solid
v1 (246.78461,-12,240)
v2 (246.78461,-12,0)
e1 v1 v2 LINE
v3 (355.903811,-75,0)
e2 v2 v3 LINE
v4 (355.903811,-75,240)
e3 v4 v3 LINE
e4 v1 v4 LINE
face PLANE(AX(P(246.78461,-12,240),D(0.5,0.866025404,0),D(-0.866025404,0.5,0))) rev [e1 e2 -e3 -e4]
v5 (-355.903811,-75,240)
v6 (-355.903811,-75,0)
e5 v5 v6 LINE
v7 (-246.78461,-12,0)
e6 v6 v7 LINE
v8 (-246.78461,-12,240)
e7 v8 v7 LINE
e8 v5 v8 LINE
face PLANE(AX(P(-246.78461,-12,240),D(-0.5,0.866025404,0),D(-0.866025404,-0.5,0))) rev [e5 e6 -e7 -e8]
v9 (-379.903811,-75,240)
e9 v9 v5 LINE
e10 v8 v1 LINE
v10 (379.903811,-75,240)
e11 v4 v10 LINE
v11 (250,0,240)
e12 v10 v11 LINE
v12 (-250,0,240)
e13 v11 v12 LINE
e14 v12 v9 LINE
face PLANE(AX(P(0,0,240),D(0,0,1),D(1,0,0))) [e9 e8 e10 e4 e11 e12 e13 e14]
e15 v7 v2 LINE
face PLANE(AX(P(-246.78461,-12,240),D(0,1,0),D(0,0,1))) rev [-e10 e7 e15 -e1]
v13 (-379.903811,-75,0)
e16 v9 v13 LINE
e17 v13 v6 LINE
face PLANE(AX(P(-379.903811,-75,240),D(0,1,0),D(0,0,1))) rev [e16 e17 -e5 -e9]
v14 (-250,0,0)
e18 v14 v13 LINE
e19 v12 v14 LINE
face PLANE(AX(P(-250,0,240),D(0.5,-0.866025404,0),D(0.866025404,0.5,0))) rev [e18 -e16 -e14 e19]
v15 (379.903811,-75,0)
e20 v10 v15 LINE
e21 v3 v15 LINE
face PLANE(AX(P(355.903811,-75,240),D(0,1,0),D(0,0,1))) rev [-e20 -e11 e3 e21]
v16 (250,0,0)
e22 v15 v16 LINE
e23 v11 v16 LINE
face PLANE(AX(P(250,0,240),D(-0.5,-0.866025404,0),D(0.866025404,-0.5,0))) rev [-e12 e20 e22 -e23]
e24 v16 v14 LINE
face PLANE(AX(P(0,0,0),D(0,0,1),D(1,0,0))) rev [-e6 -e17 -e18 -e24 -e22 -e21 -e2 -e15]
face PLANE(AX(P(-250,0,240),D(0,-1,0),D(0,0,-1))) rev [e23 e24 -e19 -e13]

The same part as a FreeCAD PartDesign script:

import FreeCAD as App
import Part
import Sketcher
Q = App.Units.Quantity

doc = App.newDocument("Part")
params = doc.addObject("Spreadsheet::Sheet", "Params")
for row, (alias, value) in enumerate([
    ("sketch1_width", "500 mm"),
    ("sketch1_width2", "24 mm"),
    ("sketch1_length", "150 mm"),
    ("sketch1_length2", "126 mm"),
    ("pad1_length", "240 mm"),
], start=1):
    params.set(f"A{row}", alias)
    params.set(f"B{row}", "=" + value)
    params.setAlias(f"B{row}", alias)

body = doc.addObject("PartDesign::Body", "Body")

# Sketch on XY plane
sketch1 = body.newObject("Sketcher::SketchObject", "Sketch")
sketch1.AttachmentSupport = (doc.getObject("XY_Plane"), [""])
sketch1.MapMode = "FlatFace"
sketch1.addGeometry(Part.LineSegment(App.Vector(250, 0, 0), App.Vector(-250, 0, 0)), False)
sketch1.addGeometry(Part.LineSegment(App.Vector(-250, 0, 0), App.Vector(-380, -75, 0)), False)
sketch1.addGeometry(Part.LineSegment(App.Vector(-380, -75, 0), App.Vector(-356, -75, 0)), False)
sketch1.addGeometry(Part.LineSegment(App.Vector(-356, -75, 0), App.Vector(-247, -12, 0)), False)
sketch1.addGeometry(Part.LineSegment(App.Vector(-247, -12, 0), App.Vector(247, -12, 0)), False)
sketch1.addGeometry(Part.LineSegment(App.Vector(247, -12, 0), App.Vector(356, -75, 0)), False)
sketch1.addGeometry(Part.LineSegment(App.Vector(356, -75, 0), App.Vector(380, -75, 0)), False)
sketch1.addGeometry(Part.LineSegment(App.Vector(380, -75, 0), App.Vector(250, 0, 0)), False)
sketch1.addConstraint(Sketcher.Constraint("Coincident", 0, 2, 1, 1))
sketch1.addConstraint(Sketcher.Constraint("Coincident", 1, 2, 2, 1))
sketch1.addConstraint(Sketcher.Constraint("Coincident", 2, 2, 3, 1))
sketch1.addConstraint(Sketcher.Constraint("Coincident", 3, 2, 4, 1))
sketch1.addConstraint(Sketcher.Constraint("Coincident", 4, 2, 5, 1))
sketch1.addConstraint(Sketcher.Constraint("Coincident", 5, 2, 6, 1))
sketch1.addConstraint(Sketcher.Constraint("Coincident", 6, 2, 7, 1))
sketch1.addConstraint(Sketcher.Constraint("Coincident", 7, 2, 0, 1))
sketch1.addConstraint(Sketcher.Constraint("Horizontal", 0))
sketch1.addConstraint(Sketcher.Constraint("Horizontal", 2))
sketch1.addConstraint(Sketcher.Constraint("Horizontal", 4))
sketch1.addConstraint(Sketcher.Constraint("Horizontal", 6))
sketch1.addConstraint(Sketcher.Constraint("Symmetric", 0, 2, 7, 2, -1, 1))
sketch1.addConstraint(Sketcher.Constraint("Symmetric", 2, 2, 5, 2, -2))
sketch1.addConstraint(Sketcher.Constraint("Parallel", 1, 3))
sketch1.addConstraint(Sketcher.Constraint("Parallel", 5, 7))
sketch1.addConstraint(Sketcher.Constraint("Equal", 2, 6))
sketch1.addConstraint(Sketcher.Constraint("DistanceX", 0, 2, 0, 1, 500.0))
sketch1.addConstraint(Sketcher.Constraint("DistanceX", 2, 1, 2, 2, 24.0))
sketch1.addConstraint(Sketcher.Constraint("Angle", 1, Q("-150 deg")))
sketch1.addConstraint(Sketcher.Constraint("Distance", 1, 150.0))
sketch1.addConstraint(Sketcher.Constraint("Distance", 3, 126.0))
sketch1.setExpression("Constraints[17]", "Params.sketch1_width")
sketch1.setExpression("Constraints[18]", "Params.sketch1_width2")
sketch1.setExpression("Constraints[20]", "Params.sketch1_length")
sketch1.setExpression("Constraints[21]", "Params.sketch1_length2")
pad1 = body.newObject("PartDesign::Pad", "Pad")
pad1.Profile = sketch1
pad1.setExpression("Length", "Params.pad1_length")

doc.recompute()
